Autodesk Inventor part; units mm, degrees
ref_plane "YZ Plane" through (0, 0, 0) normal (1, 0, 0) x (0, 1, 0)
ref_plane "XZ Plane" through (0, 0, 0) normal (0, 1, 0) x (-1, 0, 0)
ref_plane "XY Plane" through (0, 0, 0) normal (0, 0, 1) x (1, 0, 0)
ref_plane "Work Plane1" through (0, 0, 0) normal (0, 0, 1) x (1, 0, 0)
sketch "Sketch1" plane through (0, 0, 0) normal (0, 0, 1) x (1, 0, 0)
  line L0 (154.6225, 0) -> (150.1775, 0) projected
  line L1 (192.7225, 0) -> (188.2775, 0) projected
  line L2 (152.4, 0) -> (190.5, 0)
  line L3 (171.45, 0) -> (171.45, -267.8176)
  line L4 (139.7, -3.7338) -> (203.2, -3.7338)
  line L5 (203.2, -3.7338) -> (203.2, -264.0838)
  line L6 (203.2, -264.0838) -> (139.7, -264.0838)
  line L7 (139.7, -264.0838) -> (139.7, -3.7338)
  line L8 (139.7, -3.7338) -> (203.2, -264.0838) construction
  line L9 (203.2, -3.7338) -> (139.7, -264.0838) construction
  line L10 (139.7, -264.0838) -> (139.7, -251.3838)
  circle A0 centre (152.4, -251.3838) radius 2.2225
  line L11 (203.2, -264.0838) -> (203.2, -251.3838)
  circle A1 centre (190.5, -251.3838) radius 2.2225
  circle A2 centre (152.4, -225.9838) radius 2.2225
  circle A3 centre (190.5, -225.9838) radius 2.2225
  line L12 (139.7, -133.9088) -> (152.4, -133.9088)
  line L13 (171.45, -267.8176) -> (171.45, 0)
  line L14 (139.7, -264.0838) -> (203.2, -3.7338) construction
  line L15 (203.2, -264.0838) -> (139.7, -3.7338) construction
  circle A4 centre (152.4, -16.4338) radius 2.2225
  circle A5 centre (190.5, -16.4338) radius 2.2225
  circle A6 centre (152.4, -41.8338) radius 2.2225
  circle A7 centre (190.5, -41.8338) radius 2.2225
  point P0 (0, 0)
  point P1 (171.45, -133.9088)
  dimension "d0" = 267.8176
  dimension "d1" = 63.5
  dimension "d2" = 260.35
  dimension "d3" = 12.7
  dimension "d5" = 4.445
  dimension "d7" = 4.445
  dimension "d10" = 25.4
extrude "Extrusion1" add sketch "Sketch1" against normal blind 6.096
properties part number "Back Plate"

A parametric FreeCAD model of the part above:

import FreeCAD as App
import Part
import Sketcher
from FreeCAD import Vector
Q = App.Units.Quantity


def add_polygon(sketch, points):
    """Adds a closed chain of lines whose ends are joined by coincident constraints."""
    first, n = sketch.GeometryCount, len(points)
    for a, b in zip(points, points[1:] + points[:1]):
        sketch.addGeometry(Part.LineSegment(App.Vector(*a, 0), App.Vector(*b, 0)), False)
    for i in range(n):
        sketch.addConstraint(Sketcher.Constraint("Coincident", first + i, 2, first + (i + 1) % n, 1))

doc = App.newDocument("Part")
body = doc.addObject("PartDesign::Body", "Body")

# Sketch on XY plane
sketch1 = doc.addObject("Sketcher::SketchObject", "Sketch")
body.addObject(sketch1)
sketch1.AttachmentSupport = (doc.XY_Plane, [""])
sketch1.MapMode = "FlatFace"
add_polygon(sketch1, [(203.2, -3.7), (139.7, -3.7), (139.7, -264.1), (203.2, -264.1)])  # lines 0-3
sketch1.addGeometry(Part.Circle(Vector(190.5, -251.4, 0), Vector(0, 0, 1), 2.2), False)  # 4
sketch1.addGeometry(Part.Circle(Vector(190.5, -226, 0), Vector(0, 0, 1), 2.2), False)  # 5
sketch1.addGeometry(Part.Circle(Vector(190.5, -41.8, 0), Vector(0, 0, 1), 2.2), False)  # 6
sketch1.addGeometry(Part.Circle(Vector(190.5, -16.4, 0), Vector(0, 0, 1), 2.2), False)  # 7
sketch1.addGeometry(Part.Circle(Vector(152.4, -16.4, 0), Vector(0, 0, 1), 2.2), False)  # 8
sketch1.addGeometry(Part.Circle(Vector(152.4, -251.4, 0), Vector(0, 0, 1), 2.2), False)  # 9
sketch1.addGeometry(Part.Circle(Vector(152.4, -226, 0), Vector(0, 0, 1), 2.2), False)  # 10
sketch1.addGeometry(Part.Circle(Vector(152.4, -41.8, 0), Vector(0, 0, 1), 2.2), False)  # 11
sketch1.addConstraint(Sketcher.Constraint("Horizontal", 0))
sketch1.addConstraint(Sketcher.Constraint("Vertical", 1))
sketch1.addConstraint(Sketcher.Constraint("Horizontal", 2))
sketch1.addConstraint(Sketcher.Constraint("Vertical", 3))
sketch1.addConstraint(Sketcher.Constraint("Equal", 4, 5))
sketch1.addConstraint(Sketcher.Constraint("Equal", 5, 6))
sketch1.addConstraint(Sketcher.Constraint("Equal", 6, 7))
sketch1.addConstraint(Sketcher.Constraint("Equal", 7, 8))
sketch1.addConstraint(Sketcher.Constraint("Equal", 8, 9))
sketch1.addConstraint(Sketcher.Constraint("Equal", 9, 10))
sketch1.addConstraint(Sketcher.Constraint("Equal", 10, 11))
sketch1.addConstraint(Sketcher.Constraint("Horizontal", 7, 3, 8, 3))
sketch1.addConstraint(Sketcher.Constraint("Horizontal", 4, 3, 9, 3))
sketch1.addConstraint(Sketcher.Constraint("Horizontal", 5, 3, 10, 3))
sketch1.addConstraint(Sketcher.Constraint("Horizontal", 6, 3, 11, 3))
sketch1.addConstraint(Sketcher.Constraint("Vertical", 4, 3, 5, 3))
sketch1.addConstraint(Sketcher.Constraint("Vertical", 5, 3, 6, 3))
sketch1.addConstraint(Sketcher.Constraint("Vertical", 6, 3, 7, 3))
sketch1.addConstraint(Sketcher.Constraint("Vertical", 8, 3, 9, 3))
sketch1.addConstraint(Sketcher.Constraint("Vertical", 9, 3, 10, 3))
sketch1.addConstraint(Sketcher.Constraint("Vertical", 10, 3, 11, 3))
sketch1.addConstraint(Sketcher.Constraint("Diameter", 4, Q("0.175 in")))
sketch1.addConstraint(Sketcher.Constraint("DistanceX", 0, 2, 0, 1, Q("2.5 in")))
sketch1.addConstraint(Sketcher.Constraint("DistanceY", 4, 3, 5, 3, Q("1 in")))
sketch1.addConstraint(Sketcher.Constraint("DistanceY", 6, 3, 7, 3, Q("1 in")))
sketch1.addConstraint(Sketcher.Constraint("DistanceY", 1, 2, 1, 1, Q("10.25 in")))
sketch1.addConstraint(Sketcher.Constraint("DistanceX", 0, 2, 8, 3, Q("0.5 in")))
sketch1.addConstraint(Sketcher.Constraint("DistanceY", 8, 3, 0, 2, Q("0.5 in")))
sketch1.addConstraint(Sketcher.Constraint("DistanceY", 1, 2, 9, 3, Q("0.5 in")))
sketch1.addConstraint(Sketcher.Constraint("DistanceX", 4, 3, 2, 2, Q("0.5 in")))
sketch1.addConstraint(Sketcher.Constraint("DistanceX", -1, 1, 8, 3, Q("6 in")))
sketch1.addConstraint(Sketcher.Constraint("DistanceY", 4, 3, -1, 1, Q("9.897 in")))
pad1 = doc.addObject("PartDesign::Pad", "Pad")
body.addObject(pad1)
pad1.Profile = sketch1
pad1.Length = Q("0.24 in")
pad1.Reversed = True

doc.recompute()
